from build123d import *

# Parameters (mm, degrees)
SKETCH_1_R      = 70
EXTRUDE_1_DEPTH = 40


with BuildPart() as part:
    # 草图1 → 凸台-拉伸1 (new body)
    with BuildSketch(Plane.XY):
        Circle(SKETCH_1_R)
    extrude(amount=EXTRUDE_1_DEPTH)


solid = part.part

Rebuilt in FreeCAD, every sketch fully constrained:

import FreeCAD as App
import Part
import Sketcher

V = App.Vector

doc = App.newDocument("Part")
body = doc.addObject("PartDesign::Body", "Body")

sketch1 = doc.addObject("Sketcher::SketchObject", "Sketch")
body.addObject(sketch1)
sketch1.AttachmentSupport = (doc.XY_Plane, [""])
sketch1.MapMode = "FlatFace"
sketch1.addGeometry(Part.Circle(V(0, 0, 0), V(0, 0, 1), 70), False)
sketch1.addConstraint([
    Sketcher.Constraint("Coincident", 0, 3, -1, 1),
    Sketcher.Constraint("Diameter", 0, 140.0),
])
pad1 = doc.addObject("PartDesign::Pad", "Pad")
body.addObject(pad1)
pad1.Profile = sketch1
pad1.Length = 40

doc.recompute()
